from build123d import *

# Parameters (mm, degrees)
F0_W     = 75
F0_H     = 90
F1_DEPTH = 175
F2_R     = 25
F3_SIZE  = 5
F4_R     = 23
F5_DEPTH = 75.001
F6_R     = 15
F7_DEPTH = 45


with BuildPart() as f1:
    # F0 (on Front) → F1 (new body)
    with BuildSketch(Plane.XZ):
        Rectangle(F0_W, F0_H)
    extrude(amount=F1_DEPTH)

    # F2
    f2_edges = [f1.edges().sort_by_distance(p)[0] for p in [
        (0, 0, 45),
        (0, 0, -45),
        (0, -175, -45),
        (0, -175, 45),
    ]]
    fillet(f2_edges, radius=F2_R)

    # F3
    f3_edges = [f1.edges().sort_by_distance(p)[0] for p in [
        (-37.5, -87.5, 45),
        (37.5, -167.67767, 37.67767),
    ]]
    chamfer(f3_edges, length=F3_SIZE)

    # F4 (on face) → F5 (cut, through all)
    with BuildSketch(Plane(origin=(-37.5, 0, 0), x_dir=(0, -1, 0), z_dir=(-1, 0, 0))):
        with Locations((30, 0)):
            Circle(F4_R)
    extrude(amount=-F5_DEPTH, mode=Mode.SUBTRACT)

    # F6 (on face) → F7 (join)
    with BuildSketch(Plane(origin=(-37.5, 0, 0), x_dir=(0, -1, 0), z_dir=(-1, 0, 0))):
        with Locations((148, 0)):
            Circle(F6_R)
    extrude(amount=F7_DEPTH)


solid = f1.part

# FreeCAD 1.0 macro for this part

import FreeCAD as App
import Part
import Sketcher
Q = App.Units.Quantity


def edges_at(feature, points):
    """Names of the edges that pass closest to the given points."""
    edges = feature.Shape.Edges
    near = lambda p: min(range(len(edges)), key=lambda i: edges[i].distToShape(Part.Vertex(*p))[0])
    return sorted({f"Edge{near(p) + 1}" for p in points})


def add_polygon(sketch, points):
    """Adds a closed chain of lines whose ends are joined by coincident constraints."""
    first, n = sketch.GeometryCount, len(points)
    for a, b in zip(points, points[1:] + points[:1]):
        sketch.addGeometry(Part.LineSegment(App.Vector(*a, 0), App.Vector(*b, 0)), False)
    for i in range(n):
        sketch.addConstraint(Sketcher.Constraint("Coincident", first + i, 2, first + (i + 1) % n, 1))

doc = App.newDocument("Part")
params = doc.addObject("Spreadsheet::Sheet", "Params")
for row, (alias, value) in enumerate([
    ("sketch1_width", "75 mm"),
    ("sketch1_height", "90 mm"),
    ("pad1_length", "175 mm"),
    ("fillet_radius", "25 mm"),
    ("chamfer_size", "5 mm"),
    ("sketch2_diameter", "46 mm"),
    ("sketch3_diameter", "30 mm"),
    ("pad2_length", "45 mm"),
], start=1):
    params.set(f"A{row}", alias)
    params.set(f"B{row}", "=" + value)
    params.setAlias(f"B{row}", alias)

body = doc.addObject("PartDesign::Body", "Body")

sketch1 = doc.addObject("Sketcher::SketchObject", "Sketch")
body.addObject(sketch1)
sketch1.AttachmentSupport = (doc.XZ_Plane, [""])
sketch1.MapMode = "FlatFace"
add_polygon(sketch1, [(-38, 45), (-38, -45), (38, -45), (38, 45)])
sketch1.addConstraint([
    Sketcher.Constraint("Vertical", 0),
    Sketcher.Constraint("Horizontal", 1),
    Sketcher.Constraint("Vertical", 2),
    Sketcher.Constraint("Horizontal", 3),
    Sketcher.Constraint("Symmetric", 0, 2, 2, 2, -1, 1),
    Sketcher.Constraint("DistanceX", 1, 1, 1, 2, Q("75 mm")),
    Sketcher.Constraint("DistanceY", 0, 2, 0, 1, Q("90 mm")),
])
sketch1.setExpression("Constraints[9]", "Params.sketch1_width")
sketch1.setExpression("Constraints[10]", "Params.sketch1_height")
pad1 = doc.addObject("PartDesign::Pad", "Pad")
body.addObject(pad1)
pad1.Profile = sketch1
pad1.setExpression("Length", "Params.pad1_length")
doc.recompute()

fillet = doc.addObject("PartDesign::Fillet", "Fillet")
body.addObject(fillet)
fillet.Base = (pad1, edges_at(pad1, [
    (0, 0, 45),
    (0, 0, -45),
    (0, -175, -45),
    (0, -175, 45),
]))
fillet.setExpression("Radius", "Params.fillet_radius")
doc.recompute()

chamfer = doc.addObject("PartDesign::Chamfer", "Chamfer")
body.addObject(chamfer)
chamfer.Base = (fillet, edges_at(fillet, [(-37.5, -87.5, 45), (37.5, -167.678, 37.678)]))
chamfer.setExpression("Size", "Params.chamfer_size")

sketch2 = doc.addObject("Sketcher::SketchObject", "Sketch001")
body.addObject(sketch2)
sketch2.AttachmentSupport = (doc.YZ_Plane, [""])
sketch2.MapMode = "FlatFace"
sketch2.AttachmentOffset = App.Placement(App.Vector(0, 0, -37.5), App.Rotation())
sketch2.addGeometry(Part.Circle(App.Vector(-30, 0, 0), App.Vector(0, 0, 1), 23), False)
sketch2.addConstraint([
    Sketcher.Constraint("PointOnObject", 0, 3, -1),
    Sketcher.Constraint("Diameter", 0, Q("46 mm")),
    Sketcher.Constraint("DistanceX", 0, 3, -1, 1, Q("30 mm")),
])
sketch2.setExpression("Constraints[1]", "Params.sketch2_diameter")
pocket1 = doc.addObject("PartDesign::Pocket", "Pocket")
body.addObject(pocket1)
pocket1.Profile = sketch2
pocket1.Type = "ThroughAll"
pocket1.Reversed = True

sketch3 = doc.addObject("Sketcher::SketchObject", "Sketch002")
body.addObject(sketch3)
sketch3.AttachmentSupport = (doc.YZ_Plane, [""])
sketch3.MapMode = "FlatFace"
sketch3.AttachmentOffset = App.Placement(App.Vector(0, 0, -37.5), App.Rotation())
sketch3.addGeometry(Part.Circle(App.Vector(-148, 0, 0), App.Vector(0, 0, 1), 15), False)
sketch3.addConstraint([
    Sketcher.Constraint("PointOnObject", 0, 3, -1),
    Sketcher.Constraint("Diameter", 0, Q("30 mm")),
    Sketcher.Constraint("DistanceX", 0, 3, -1, 1, Q("148 mm")),
])
sketch3.setExpression("Constraints[1]", "Params.sketch3_diameter")
pad2 = doc.addObject("PartDesign::Pad", "Pad001")
body.addObject(pad2)
pad2.Profile = sketch3
pad2.setExpression("Length", "Params.pad2_length")
pad2.Reversed = True

doc.recompute()
